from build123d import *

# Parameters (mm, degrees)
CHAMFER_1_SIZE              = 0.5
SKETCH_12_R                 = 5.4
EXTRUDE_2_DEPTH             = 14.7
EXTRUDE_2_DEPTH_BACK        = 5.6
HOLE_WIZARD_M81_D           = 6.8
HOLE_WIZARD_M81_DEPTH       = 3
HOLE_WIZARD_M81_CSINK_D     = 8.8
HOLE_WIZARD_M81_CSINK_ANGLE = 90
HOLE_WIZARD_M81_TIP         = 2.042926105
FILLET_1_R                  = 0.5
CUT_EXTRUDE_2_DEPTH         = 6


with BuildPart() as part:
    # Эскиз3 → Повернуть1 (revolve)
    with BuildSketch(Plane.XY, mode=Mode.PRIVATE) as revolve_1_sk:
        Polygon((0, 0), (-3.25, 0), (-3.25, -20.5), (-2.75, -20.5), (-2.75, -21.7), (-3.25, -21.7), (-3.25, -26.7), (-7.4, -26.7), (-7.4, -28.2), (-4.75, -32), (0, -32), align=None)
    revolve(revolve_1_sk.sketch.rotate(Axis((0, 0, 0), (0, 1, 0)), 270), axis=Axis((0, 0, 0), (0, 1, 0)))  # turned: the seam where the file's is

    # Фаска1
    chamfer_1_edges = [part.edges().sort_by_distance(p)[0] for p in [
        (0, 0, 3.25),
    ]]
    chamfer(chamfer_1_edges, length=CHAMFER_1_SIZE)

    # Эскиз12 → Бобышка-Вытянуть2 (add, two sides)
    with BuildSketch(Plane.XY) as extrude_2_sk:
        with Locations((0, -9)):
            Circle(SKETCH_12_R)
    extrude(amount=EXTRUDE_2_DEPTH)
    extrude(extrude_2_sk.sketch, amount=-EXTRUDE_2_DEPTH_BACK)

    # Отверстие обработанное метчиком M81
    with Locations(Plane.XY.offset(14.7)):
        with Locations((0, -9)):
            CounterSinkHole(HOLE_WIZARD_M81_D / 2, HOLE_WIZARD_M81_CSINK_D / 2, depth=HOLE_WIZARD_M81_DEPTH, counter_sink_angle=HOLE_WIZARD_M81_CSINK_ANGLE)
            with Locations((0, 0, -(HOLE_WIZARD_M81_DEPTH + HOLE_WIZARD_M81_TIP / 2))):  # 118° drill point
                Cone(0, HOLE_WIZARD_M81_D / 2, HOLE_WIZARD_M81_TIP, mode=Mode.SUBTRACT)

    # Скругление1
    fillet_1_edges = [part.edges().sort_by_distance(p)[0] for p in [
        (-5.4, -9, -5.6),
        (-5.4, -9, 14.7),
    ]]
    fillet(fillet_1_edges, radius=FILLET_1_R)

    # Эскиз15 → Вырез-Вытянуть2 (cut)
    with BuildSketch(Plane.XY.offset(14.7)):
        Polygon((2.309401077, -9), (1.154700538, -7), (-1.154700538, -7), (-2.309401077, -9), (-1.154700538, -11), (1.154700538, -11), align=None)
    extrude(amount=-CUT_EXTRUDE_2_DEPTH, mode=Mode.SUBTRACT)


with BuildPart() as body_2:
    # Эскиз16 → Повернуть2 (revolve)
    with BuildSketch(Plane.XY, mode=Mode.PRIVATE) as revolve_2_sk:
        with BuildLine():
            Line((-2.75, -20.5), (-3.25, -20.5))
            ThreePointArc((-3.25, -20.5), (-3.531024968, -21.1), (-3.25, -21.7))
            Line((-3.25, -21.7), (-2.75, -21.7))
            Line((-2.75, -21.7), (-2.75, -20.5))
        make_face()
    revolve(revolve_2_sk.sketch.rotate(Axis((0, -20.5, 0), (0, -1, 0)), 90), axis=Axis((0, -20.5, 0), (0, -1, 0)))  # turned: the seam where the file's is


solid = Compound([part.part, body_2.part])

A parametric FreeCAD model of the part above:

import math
import FreeCAD as App
import Part
import Sketcher

V = App.Vector
Q = App.Units.Quantity


def edges_at(feature, points):
    """Names of the edges that pass closest to the given points."""
    edges = feature.Shape.Edges
    near = lambda p: min(range(len(edges)), key=lambda i: edges[i].distToShape(Part.Vertex(*p))[0])
    return sorted({f"Edge{near(p) + 1}" for p in points})


def add_polygon(sketch, points):
    """Adds a closed chain of lines whose ends are joined by coincident constraints."""
    first, n = sketch.GeometryCount, len(points)
    for a, b in zip(points, points[1:] + points[:1]):
        sketch.addGeometry(Part.LineSegment(App.Vector(*a, 0), App.Vector(*b, 0)), False)
    for i in range(n):
        sketch.addConstraint(Sketcher.Constraint("Coincident", first + i, 2, first + (i + 1) % n, 1))

doc = App.newDocument("Part")
params = doc.addObject("Spreadsheet::Sheet", "Params")
for row, (alias, value) in enumerate([
    ("sketch1_height", "5 mm"),
    ("sketch1_height2", "32 mm"),
    ("sketch1_width", "0.5 mm"),
    ("sketch1_height3", "20.5 mm"),
    ("sketch1_height4", "1.2 mm"),
    ("revolution_angle", "360 deg"),
    ("chamfer_size", "0.5 mm"),
    ("sketch2_diameter", "10.8 mm"),
    ("pad1_length", "14.7 mm"),
    ("pad1_length2", "5.6 mm"),
    ("sketch3_diameter", "6.8 mm"),
    ("hole_diameter", "6.8 mm"),
    ("hole_depth", "3 mm"),
    ("hole_csink_diameter", "8.8 mm"),
    ("fillet_radius", "0.5 mm"),
    ("pocket1_length", "6 mm"),
    ("sketch5_width", "0.5 mm"),
    ("sketch5_height", "1.2 mm"),
    ("revolution2_angle", "360 deg"),
], start=1):
    params.set(f"A{row}", alias)
    params.set(f"B{row}", "=" + value)
    params.setAlias(f"B{row}", alias)

body = doc.addObject("PartDesign::Body", "Body")

# Sketch on XY plane
sketch1 = body.newObject("Sketcher::SketchObject", "Sketch")
sketch1.AttachmentSupport = (doc.getObject("XY_Plane"), [""])
sketch1.MapMode = "FlatFace"
add_polygon(sketch1, [(0, 0), (-3.2, 0), (-3.2, -20.5), (-2.8, -20.5), (-2.8, -21.7), (-3.2, -21.7), (-3.2, -26.7), (-7.4, -26.7), (-7.4, -28.2), (-4.8, -32), (0, -32)])  # lines 0-10
sketch1.addConstraint([
    Sketcher.Constraint("Horizontal", 0),
    Sketcher.Constraint("Vertical", 1),
    Sketcher.Constraint("Horizontal", 2),
    Sketcher.Constraint("Vertical", 3),
    Sketcher.Constraint("Horizontal", 4),
    Sketcher.Constraint("Vertical", 5),
    Sketcher.Constraint("Horizontal", 6),
    Sketcher.Constraint("Vertical", 7),
    Sketcher.Constraint("Horizontal", 9),
    Sketcher.Constraint("Vertical", 10),
    Sketcher.Constraint("Coincident", 10, 2, -1, 1),
    Sketcher.Constraint("Vertical", 1, 2, 4, 2),
    Sketcher.Constraint("DistanceY", 5, 2, 5, 1, 5.0),
    Sketcher.Constraint("DistanceY", 10, 1, 10, 2, 32.0),
    Sketcher.Constraint("DistanceX", 2, 1, 2, 2, 0.5),
    Sketcher.Constraint("DistanceY", 1, 2, 1, 1, 20.5),
    Sketcher.Constraint("DistanceY", 3, 2, 3, 1, 1.2),
    Sketcher.Constraint("DistanceY", 7, 2, 7, 1, 1.5),
    Sketcher.Constraint("DistanceX", 8, 2, 3, 2, 2.0),
    Sketcher.Constraint("DistanceX", 0, 2, 0, 1, 3.25),
    Sketcher.Constraint("DistanceX", 6, 2, 6, 1, 4.15),
])
sketch1.setExpression("Constraints[23]", "Params.sketch1_height")
sketch1.setExpression("Constraints[24]", "Params.sketch1_height2")
sketch1.setExpression("Constraints[25]", "Params.sketch1_width")
sketch1.setExpression("Constraints[26]", "Params.sketch1_height3")
sketch1.setExpression("Constraints[27]", "Params.sketch1_height4")
revolution = body.newObject("PartDesign::Revolution", "Revolution")
revolution.Profile = sketch1
revolution.ReferenceAxis = (sketch1, ["V_Axis"])
revolution.setExpression("Angle", "Params.revolution_angle")
doc.recompute()

chamfer = body.newObject("PartDesign::Chamfer", "Chamfer")
chamfer.Base = (revolution, edges_at(revolution, [(0, 0, 3.25)]))
chamfer.setExpression("Size", "Params.chamfer_size")

# Sketch on XY plane
sketch2 = body.newObject("Sketcher::SketchObject", "Sketch001")
sketch2.AttachmentSupport = (doc.getObject("XY_Plane"), [""])
sketch2.MapMode = "FlatFace"
sketch2.addGeometry(Part.Circle(V(0, -9, 0), V(0, 0, 1), 5), False)
sketch2.addConstraint([
    Sketcher.Constraint("PointOnObject", 0, 3, -2),
    Sketcher.Constraint("Diameter", 0, 10.8),
    Sketcher.Constraint("DistanceY", 0, 3, -1, 1, 9.0),
])
sketch2.setExpression("Constraints[1]", "Params.sketch2_diameter")
pad1 = body.newObject("PartDesign::Pad", "Pad")
pad1.Profile = sketch2
pad1.Type = "TwoLengths"
pad1.setExpression("Length", "Params.pad1_length")
pad1.setExpression("Length2", "Params.pad1_length2")

# Sketch on XY plane
sketch3 = body.newObject("Sketcher::SketchObject", "Sketch002")
sketch3.AttachmentSupport = (doc.getObject("XY_Plane"), [""])
sketch3.MapMode = "FlatFace"
sketch3.AttachmentOffset = App.Placement(V(0, 0, 14.7), App.Rotation())
sketch3.addGeometry(Part.Circle(V(0, -9, 0), V(0, 0, 1), 3.4), False)
sketch3.addConstraint([
    Sketcher.Constraint("PointOnObject", 0, 3, -2),
    Sketcher.Constraint("Diameter", 0, 6.8),
    Sketcher.Constraint("DistanceY", 0, 3, -1, 1, 9.0),
])
sketch3.setExpression("Constraints[1]", "Params.sketch3_diameter")
doc.recompute()
hole = body.newObject("PartDesign::Hole", "Hole")
hole.Profile = sketch3
hole.ThreadType = "None"
hole.setExpression("Diameter", "Params.hole_diameter")
hole.DepthType = "Dimension"
hole.setExpression("Depth", "Params.hole_depth")
hole.DrillPoint = "Angled"
hole.DrillPointAngle = 118
hole.HoleCutType = "Countersink"
hole.setExpression("HoleCutDiameter", "Params.hole_csink_diameter")
hole.HoleCutCountersinkAngle = 90
doc.recompute()

fillet = body.newObject("PartDesign::Fillet", "Fillet")
fillet.Base = (hole, edges_at(hole, [(-5.4, -9, -5.6), (-5.4, -9, 14.7)]))
fillet.setExpression("Radius", "Params.fillet_radius")

# Sketch on XY plane
sketch4 = body.newObject("Sketcher::SketchObject", "Sketch003")
sketch4.AttachmentSupport = (doc.getObject("XY_Plane"), [""])
sketch4.MapMode = "FlatFace"
sketch4.AttachmentOffset = App.Placement(V(0, 0, 14.7), App.Rotation())
add_polygon(sketch4, [(2.3, -9), (1.2, -7), (-1.2, -7), (-2.3, -9), (-1.2, -11), (1.2, -11)])  # lines 0-5
sketch4.addConstraint([
    Sketcher.Constraint("Horizontal", 1),
    Sketcher.Constraint("Horizontal", 4),
    Sketcher.Constraint("Symmetric", 2, 2, 5, 2, -2),
    Sketcher.Constraint("Parallel", 0, 3),
    Sketcher.Constraint("Parallel", 2, 5),
    Sketcher.Constraint("Vertical", 1, 2, 3, 2),
    Sketcher.Constraint("Vertical", 0, 2, 4, 2),
    Sketcher.Constraint("Angle", 0, Q("120 deg")),
    Sketcher.Constraint("DistanceY", 0, 2, -1, 1, 7.0),
    Sketcher.Constraint("DistanceY", 2, 2, -1, 1, 9.0),
    Sketcher.Constraint("DistanceX", 1, 2, 1, 1, 2.309401),
])
pocket1 = body.newObject("PartDesign::Pocket", "Pocket")
pocket1.Profile = sketch4
pocket1.setExpression("Length", "Params.pocket1_length")
body2 = doc.addObject("PartDesign::Body", "Body001")

# Sketch on XY plane
sketch5 = body2.newObject("Sketcher::SketchObject", "Sketch004")
sketch5.AttachmentSupport = (doc.getObject("XY_Plane001"), [""])
sketch5.MapMode = "FlatFace"
sketch5.addGeometry([
    Part.LineSegment(V(-2.8, -20.5, 0), V(-3.2, -20.5, 0)),
    Part.ArcOfCircle(Part.Circle(V(-2.8, -21.1, 0), V(0, 0, 1), 0.8), math.radians(130), math.radians(230)),
    Part.LineSegment(V(-3.2, -21.7, 0), V(-2.8, -21.7, 0)),
    Part.LineSegment(V(-2.8, -21.7, 0), V(-2.8, -20.5, 0)),
], False)
sketch5.addConstraint([
    Sketcher.Constraint("Coincident", 0, 2, 1, 1),
    Sketcher.Constraint("Coincident", 1, 2, 2, 1),
    Sketcher.Constraint("Coincident", 2, 2, 3, 1),
    Sketcher.Constraint("Coincident", 3, 2, 0, 1),
    Sketcher.Constraint("Horizontal", 0),
    Sketcher.Constraint("Horizontal", 2),
    Sketcher.Constraint("Vertical", 3),
    Sketcher.Constraint("Vertical", 0, 2, 1, 2),
    Sketcher.Constraint("Vertical", 1, 3, 2, 2),
    Sketcher.Constraint("DistanceX", 0, 2, 0, 1, 0.5),
    Sketcher.Constraint("DistanceY", 3, 1, 3, 2, 1.2),
    Sketcher.Constraint("DistanceY", 1, 3, -1, 1, 21.1),
    Sketcher.Constraint("DistanceX", 1, 3, -1, 1, 2.75),
])
sketch5.setExpression("Constraints[9]", "Params.sketch5_width")
sketch5.setExpression("Constraints[10]", "Params.sketch5_height")
revolution2 = body2.newObject("PartDesign::Revolution", "Revolution001")
revolution2.Profile = sketch5
revolution2.ReferenceAxis = (sketch5, ["V_Axis"])
revolution2.setExpression("Angle", "Params.revolution2_angle")

doc.recompute()
